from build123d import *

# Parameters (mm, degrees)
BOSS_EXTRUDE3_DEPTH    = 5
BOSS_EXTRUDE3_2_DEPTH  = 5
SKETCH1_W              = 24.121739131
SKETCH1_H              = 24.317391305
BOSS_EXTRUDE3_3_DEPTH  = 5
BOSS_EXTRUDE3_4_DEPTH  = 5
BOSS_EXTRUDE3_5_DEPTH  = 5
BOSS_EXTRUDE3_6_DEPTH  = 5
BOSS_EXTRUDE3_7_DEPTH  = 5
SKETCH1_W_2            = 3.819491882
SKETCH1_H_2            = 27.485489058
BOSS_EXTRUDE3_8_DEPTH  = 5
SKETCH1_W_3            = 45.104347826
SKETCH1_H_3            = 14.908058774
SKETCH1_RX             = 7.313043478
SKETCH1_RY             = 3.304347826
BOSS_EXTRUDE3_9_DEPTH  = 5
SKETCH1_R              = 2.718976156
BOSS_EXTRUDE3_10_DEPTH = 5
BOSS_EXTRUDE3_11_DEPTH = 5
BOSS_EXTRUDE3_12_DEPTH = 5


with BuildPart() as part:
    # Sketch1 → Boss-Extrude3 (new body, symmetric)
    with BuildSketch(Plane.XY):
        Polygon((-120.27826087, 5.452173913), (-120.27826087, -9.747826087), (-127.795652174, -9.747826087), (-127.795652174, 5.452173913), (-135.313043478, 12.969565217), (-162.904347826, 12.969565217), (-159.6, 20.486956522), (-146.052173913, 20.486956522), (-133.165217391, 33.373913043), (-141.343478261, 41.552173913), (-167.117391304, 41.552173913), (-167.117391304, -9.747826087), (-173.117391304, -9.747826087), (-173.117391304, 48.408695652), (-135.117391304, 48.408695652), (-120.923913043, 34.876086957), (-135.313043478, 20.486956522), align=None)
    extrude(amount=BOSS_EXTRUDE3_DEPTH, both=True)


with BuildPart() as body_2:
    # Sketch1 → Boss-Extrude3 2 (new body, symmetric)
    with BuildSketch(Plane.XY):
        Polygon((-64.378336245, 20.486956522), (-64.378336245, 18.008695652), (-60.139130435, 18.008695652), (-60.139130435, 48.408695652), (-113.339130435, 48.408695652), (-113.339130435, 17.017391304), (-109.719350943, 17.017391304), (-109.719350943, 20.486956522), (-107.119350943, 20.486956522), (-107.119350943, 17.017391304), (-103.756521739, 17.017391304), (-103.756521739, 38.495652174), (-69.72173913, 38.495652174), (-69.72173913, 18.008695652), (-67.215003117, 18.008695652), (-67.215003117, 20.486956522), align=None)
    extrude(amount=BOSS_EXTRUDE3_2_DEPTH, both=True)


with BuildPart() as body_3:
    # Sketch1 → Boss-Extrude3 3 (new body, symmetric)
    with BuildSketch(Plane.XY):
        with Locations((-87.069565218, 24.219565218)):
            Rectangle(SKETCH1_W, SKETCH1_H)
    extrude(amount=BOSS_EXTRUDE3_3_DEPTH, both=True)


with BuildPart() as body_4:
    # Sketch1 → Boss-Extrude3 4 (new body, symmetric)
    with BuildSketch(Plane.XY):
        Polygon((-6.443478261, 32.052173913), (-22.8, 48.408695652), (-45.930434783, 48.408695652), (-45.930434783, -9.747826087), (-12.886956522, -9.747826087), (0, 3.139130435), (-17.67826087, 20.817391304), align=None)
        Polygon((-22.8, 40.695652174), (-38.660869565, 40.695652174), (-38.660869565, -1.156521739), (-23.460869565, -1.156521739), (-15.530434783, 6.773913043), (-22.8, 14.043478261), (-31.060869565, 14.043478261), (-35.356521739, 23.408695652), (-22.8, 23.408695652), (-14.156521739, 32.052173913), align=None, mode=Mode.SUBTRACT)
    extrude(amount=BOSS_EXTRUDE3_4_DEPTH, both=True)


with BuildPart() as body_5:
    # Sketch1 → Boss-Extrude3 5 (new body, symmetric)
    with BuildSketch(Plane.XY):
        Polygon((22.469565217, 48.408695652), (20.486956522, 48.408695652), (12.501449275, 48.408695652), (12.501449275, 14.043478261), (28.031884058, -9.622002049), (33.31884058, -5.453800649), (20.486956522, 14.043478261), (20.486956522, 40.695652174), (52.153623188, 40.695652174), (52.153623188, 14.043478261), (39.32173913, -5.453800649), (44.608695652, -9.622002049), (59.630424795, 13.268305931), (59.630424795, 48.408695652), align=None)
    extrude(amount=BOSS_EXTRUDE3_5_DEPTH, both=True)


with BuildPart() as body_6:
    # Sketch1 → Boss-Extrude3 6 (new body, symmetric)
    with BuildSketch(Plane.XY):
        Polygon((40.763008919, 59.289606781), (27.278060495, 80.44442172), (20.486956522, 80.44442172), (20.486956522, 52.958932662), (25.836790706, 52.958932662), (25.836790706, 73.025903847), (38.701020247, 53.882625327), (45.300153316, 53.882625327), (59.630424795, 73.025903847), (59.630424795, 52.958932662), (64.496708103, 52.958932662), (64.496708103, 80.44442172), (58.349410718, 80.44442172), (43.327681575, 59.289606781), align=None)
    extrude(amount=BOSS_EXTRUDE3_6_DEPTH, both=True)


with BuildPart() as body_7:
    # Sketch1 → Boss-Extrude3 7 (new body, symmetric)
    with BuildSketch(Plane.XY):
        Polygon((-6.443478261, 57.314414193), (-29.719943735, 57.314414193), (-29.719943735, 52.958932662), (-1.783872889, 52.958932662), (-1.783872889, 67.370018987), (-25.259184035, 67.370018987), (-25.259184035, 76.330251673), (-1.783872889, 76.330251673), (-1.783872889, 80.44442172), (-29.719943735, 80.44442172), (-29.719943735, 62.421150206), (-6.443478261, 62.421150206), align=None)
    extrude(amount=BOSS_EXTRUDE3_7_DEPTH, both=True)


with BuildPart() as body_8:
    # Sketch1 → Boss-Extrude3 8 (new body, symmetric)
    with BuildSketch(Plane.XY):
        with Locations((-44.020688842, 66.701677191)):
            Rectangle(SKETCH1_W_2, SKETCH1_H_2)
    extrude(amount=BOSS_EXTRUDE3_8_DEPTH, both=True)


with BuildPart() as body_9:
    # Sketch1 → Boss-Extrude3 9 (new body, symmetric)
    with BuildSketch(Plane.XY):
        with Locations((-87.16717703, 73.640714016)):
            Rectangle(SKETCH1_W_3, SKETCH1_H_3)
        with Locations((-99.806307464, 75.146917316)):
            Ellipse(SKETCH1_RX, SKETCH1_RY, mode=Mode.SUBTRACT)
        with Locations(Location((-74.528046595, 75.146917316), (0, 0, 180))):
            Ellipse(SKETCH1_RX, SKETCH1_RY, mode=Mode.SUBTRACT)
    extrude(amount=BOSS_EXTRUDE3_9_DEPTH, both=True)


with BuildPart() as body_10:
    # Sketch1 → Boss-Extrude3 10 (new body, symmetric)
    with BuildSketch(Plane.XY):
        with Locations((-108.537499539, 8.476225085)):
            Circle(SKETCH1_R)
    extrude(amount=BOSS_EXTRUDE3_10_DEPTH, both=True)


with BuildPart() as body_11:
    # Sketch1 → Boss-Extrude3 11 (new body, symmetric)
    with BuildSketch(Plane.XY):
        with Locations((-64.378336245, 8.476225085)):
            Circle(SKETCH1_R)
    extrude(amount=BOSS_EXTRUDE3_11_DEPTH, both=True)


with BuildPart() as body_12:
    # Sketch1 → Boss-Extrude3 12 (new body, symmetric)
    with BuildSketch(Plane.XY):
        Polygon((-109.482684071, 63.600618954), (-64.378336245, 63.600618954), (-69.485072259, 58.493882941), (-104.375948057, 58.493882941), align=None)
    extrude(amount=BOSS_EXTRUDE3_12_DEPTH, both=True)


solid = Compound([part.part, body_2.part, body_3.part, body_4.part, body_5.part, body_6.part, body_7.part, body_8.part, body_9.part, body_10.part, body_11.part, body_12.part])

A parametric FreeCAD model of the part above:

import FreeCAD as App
import Part
import Sketcher

V = App.Vector
Q = App.Units.Quantity

doc = App.newDocument("Part")
body = doc.addObject("PartDesign::Body", "Body")

# Sketch on XY plane
sketch1 = doc.addObject("Sketcher::SketchObject", "Sketch")
body.addObject(sketch1)
sketch1.AttachmentSupport = (doc.XY_Plane, [""])
sketch1.MapMode = "FlatFace"
sketch1.addGeometry(Part.LineSegment(V(-120, -10, 0), V(-120, 5, 0)), False)
sketch1.addGeometry(Part.LineSegment(V(-120, 5, 0), V(-135, 20, 0)), False)
sketch1.addGeometry(Part.LineSegment(V(-135, 20, 0), V(-121, 35, 0)), False)
sketch1.addGeometry(Part.LineSegment(V(-121, 35, 0), V(-135, 48, 0)), False)
sketch1.addGeometry(Part.LineSegment(V(-135, 48, 0), V(-173, 48, 0)), False)
sketch1.addGeometry(Part.LineSegment(V(-173, 48, 0), V(-173, -10, 0)), False)
sketch1.addGeometry(Part.LineSegment(V(-173, -10, 0), V(-167, -10, 0)), False)
sketch1.addGeometry(Part.LineSegment(V(-167, -10, 0), V(-167, 42, 0)), False)
sketch1.addGeometry(Part.LineSegment(V(-167, 42, 0), V(-141, 42, 0)), False)
sketch1.addGeometry(Part.LineSegment(V(-141, 42, 0), V(-133, 33, 0)), False)
sketch1.addGeometry(Part.LineSegment(V(-133, 33, 0), V(-146, 20, 0)), False)
sketch1.addGeometry(Part.LineSegment(V(-146, 20, 0), V(-160, 20, 0)), False)
sketch1.addGeometry(Part.LineSegment(V(-160, 20, 0), V(-163, 13, 0)), False)
sketch1.addGeometry(Part.LineSegment(V(-163, 13, 0), V(-135, 13, 0)), False)
sketch1.addGeometry(Part.LineSegment(V(-135, 13, 0), V(-128, 5, 0)), False)
sketch1.addGeometry(Part.LineSegment(V(-128, 5, 0), V(-128, -10, 0)), False)
sketch1.addGeometry(Part.LineSegment(V(-128, -10, 0), V(-120, -10, 0)), False)
sketch1.addConstraint(Sketcher.Constraint("Coincident", 0, 2, 1, 1))
sketch1.addConstraint(Sketcher.Constraint("Coincident", 1, 2, 2, 1))
sketch1.addConstraint(Sketcher.Constraint("Coincident", 2, 2, 3, 1))
sketch1.addConstraint(Sketcher.Constraint("Coincident", 3, 2, 4, 1))
sketch1.addConstraint(Sketcher.Constraint("Coincident", 4, 2, 5, 1))
sketch1.addConstraint(Sketcher.Constraint("Coincident", 5, 2, 6, 1))
sketch1.addConstraint(Sketcher.Constraint("Coincident", 6, 2, 7, 1))
sketch1.addConstraint(Sketcher.Constraint("Coincident", 7, 2, 8, 1))
sketch1.addConstraint(Sketcher.Constraint("Coincident", 8, 2, 9, 1))
sketch1.addConstraint(Sketcher.Constraint("Coincident", 9, 2, 10, 1))
sketch1.addConstraint(Sketcher.Constraint("Coincident", 10, 2, 11, 1))
sketch1.addConstraint(Sketcher.Constraint("Coincident", 11, 2, 12, 1))
sketch1.addConstraint(Sketcher.Constraint("Coincident", 12, 2, 13, 1))
sketch1.addConstraint(Sketcher.Constraint("Coincident", 13, 2, 14, 1))
sketch1.addConstraint(Sketcher.Constraint("Coincident", 14, 2, 15, 1))
sketch1.addConstraint(Sketcher.Constraint("Coincident", 15, 2, 16, 1))
sketch1.addConstraint(Sketcher.Constraint("Coincident", 16, 2, 0, 1))
sketch1.addConstraint(Sketcher.Constraint("Vertical", 0))
sketch1.addConstraint(Sketcher.Constraint("Horizontal", 4))
sketch1.addConstraint(Sketcher.Constraint("Vertical", 5))
sketch1.addConstraint(Sketcher.Constraint("Horizontal", 6))
sketch1.addConstraint(Sketcher.Constraint("Vertical", 7))
sketch1.addConstraint(Sketcher.Constraint("Horizontal", 8))
sketch1.addConstraint(Sketcher.Constraint("Horizontal", 11))
sketch1.addConstraint(Sketcher.Constraint("Horizontal", 13))
sketch1.addConstraint(Sketcher.Constraint("Vertical", 15))
sketch1.addConstraint(Sketcher.Constraint("Horizontal", 16))
sketch1.addConstraint(Sketcher.Constraint("Perpendicular", 1, 2))
sketch1.addConstraint(Sketcher.Constraint("Perpendicular", 2, 9))
sketch1.addConstraint(Sketcher.Constraint("Perpendicular", 9, 10))
sketch1.addConstraint(Sketcher.Constraint("Perpendicular", 10, 14))
sketch1.addConstraint(Sketcher.Constraint("Horizontal", 1, 2, 10, 2))
sketch1.addConstraint(Sketcher.Constraint("Horizontal", 0, 2, 14, 2))
sketch1.addConstraint(Sketcher.Constraint("Horizontal", 6, 2, 15, 2))
sketch1.addConstraint(Sketcher.Constraint("Vertical", 1, 2, 13, 2))
sketch1.addConstraint(Sketcher.Constraint("DistanceX", 4, 2, 4, 1, Q("38 mm")))
sketch1.addConstraint(Sketcher.Constraint("DistanceX", 6, 1, 6, 2, Q("6 mm")))
sketch1.addConstraint(Sketcher.Constraint("Angle", 1, Q("135 deg")))
sketch1.addConstraint(Sketcher.Constraint("DistanceY", 0, 1, 0, 2, Q("15.2 mm")))
sketch1.addConstraint(Sketcher.Constraint("DistanceY", 7, 1, 7, 2, Q("51.3 mm")))
sketch1.addConstraint(Sketcher.Constraint("DistanceX", 11, 2, -1, 1, Q("159.6 mm")))
sketch1.addConstraint(Sketcher.Constraint("DistanceX", 16, 1, 16, 2, Q("7.517391 mm")))
sketch1.addConstraint(Sketcher.Constraint("DistanceY", 5, 2, 5, 1, Q("58.156522 mm")))
sketch1.addConstraint(Sketcher.Constraint("Distance", 10, Q("18.224909 mm")))
sketch1.addConstraint(Sketcher.Constraint("Distance", 12, Q("8.21157 mm")))
sketch1.addConstraint(Sketcher.Constraint("DistanceX", 8, 1, 8, 2, Q("25.773913 mm")))
sketch1.addConstraint(Sketcher.Constraint("DistanceX", 11, 2, 11, 1, Q("13.547826 mm")))
sketch1.addConstraint(Sketcher.Constraint("DistanceX", 13, 1, 13, 2, Q("27.591304 mm")))
sketch1.addConstraint(Sketcher.Constraint("DistanceX", 0, 2, -1, 1, Q("120.278261 mm")))
sketch1.addConstraint(Sketcher.Constraint("DistanceX", 1, 2, 2, 2, Q("14.38913 mm")))
sketch1.addConstraint(Sketcher.Constraint("DistanceY", -1, 1, 0, 2, Q("5.452174 mm")))
pad1 = doc.addObject("PartDesign::Pad", "Pad")
body.addObject(pad1)
pad1.Profile = sketch1
pad1.Length = 10
pad1.Midplane = True
body2 = doc.addObject("PartDesign::Body", "Body001")

# Sketch on XY plane
sketch2 = doc.addObject("Sketcher::SketchObject", "Sketch001")
body2.addObject(sketch2)
sketch2.AttachmentSupport = (doc.getObject("XY_Plane001"), [""])
sketch2.MapMode = "FlatFace"
sketch2.addGeometry(Part.LineSegment(V(-64.4, 20.5, 0), V(-64.4, 18, 0)), False)
sketch2.addGeometry(Part.LineSegment(V(-64.4, 18, 0), V(-60.1, 18, 0)), False)
sketch2.addGeometry(Part.LineSegment(V(-60.1, 18, 0), V(-60.1, 48.4, 0)), False)
sketch2.addGeometry(Part.LineSegment(V(-60.1, 48.4, 0), V(-113.3, 48.4, 0)), False)
sketch2.addGeometry(Part.LineSegment(V(-113.3, 48.4, 0), V(-113.3, 17, 0)), False)
sketch2.addGeometry(Part.LineSegment(V(-113.3, 17, 0), V(-109.7, 17, 0)), False)
sketch2.addGeometry(Part.LineSegment(V(-109.7, 17, 0), V(-109.7, 20.5, 0)), False)
sketch2.addGeometry(Part.LineSegment(V(-109.7, 20.5, 0), V(-107.1, 20.5, 0)), False)
sketch2.addGeometry(Part.LineSegment(V(-107.1, 20.5, 0), V(-107.1, 17, 0)), False)
sketch2.addGeometry(Part.LineSegment(V(-107.1, 17, 0), V(-103.8, 17, 0)), False)
sketch2.addGeometry(Part.LineSegment(V(-103.8, 17, 0), V(-103.8, 38.5, 0)), False)
sketch2.addGeometry(Part.LineSegment(V(-103.8, 38.5, 0), V(-69.7, 38.5, 0)), False)
sketch2.addGeometry(Part.LineSegment(V(-69.7, 38.5, 0), V(-69.7, 18, 0)), False)
sketch2.addGeometry(Part.LineSegment(V(-69.7, 18, 0), V(-67.2, 18, 0)), False)
sketch2.addGeometry(Part.LineSegment(V(-67.2, 18, 0), V(-67.2, 20.5, 0)), False)
sketch2.addGeometry(Part.LineSegment(V(-67.2, 20.5, 0), V(-64.4, 20.5, 0)), False)
sketch2.addConstraint(Sketcher.Constraint("Coincident", 0, 2, 1, 1))
sketch2.addConstraint(Sketcher.Constraint("Coincident", 1, 2, 2, 1))
sketch2.addConstraint(Sketcher.Constraint("Coincident", 2, 2, 3, 1))
sketch2.addConstraint(Sketcher.Constraint("Coincident", 3, 2, 4, 1))
sketch2.addConstraint(Sketcher.Constraint("Coincident", 4, 2, 5, 1))
sketch2.addConstraint(Sketcher.Constraint("Coincident", 5, 2, 6, 1))
sketch2.addConstraint(Sketcher.Constraint("Coincident", 6, 2, 7, 1))
sketch2.addConstraint(Sketcher.Constraint("Coincident", 7, 2, 8, 1))
sketch2.addConstraint(Sketcher.Constraint("Coincident", 8, 2, 9, 1))
sketch2.addConstraint(Sketcher.Constraint("Coincident", 9, 2, 10, 1))
sketch2.addConstraint(Sketcher.Constraint("Coincident", 10, 2, 11, 1))
sketch2.addConstraint(Sketcher.Constraint("Coincident", 11, 2, 12, 1))
sketch2.addConstraint(Sketcher.Constraint("Coincident", 12, 2, 13, 1))
sketch2.addConstraint(Sketcher.Constraint("Coincident", 13, 2, 14, 1))
sketch2.addConstraint(Sketcher.Constraint("Coincident", 14, 2, 15, 1))
sketch2.addConstraint(Sketcher.Constraint("Coincident", 15, 2, 0, 1))
sketch2.addConstraint(Sketcher.Constraint("Vertical", 0))
sketch2.addConstraint(Sketcher.Constraint("Horizontal", 1))
sketch2.addConstraint(Sketcher.Constraint("Vertical", 2))
sketch2.addConstraint(Sketcher.Constraint("Horizontal", 3))
sketch2.addConstraint(Sketcher.Constraint("Vertical", 4))
sketch2.addConstraint(Sketcher.Constraint("Horizontal", 5))
sketch2.addConstraint(Sketcher.Constraint("Vertical", 6))
sketch2.addConstraint(Sketcher.Constraint("Horizontal", 7))
sketch2.addConstraint(Sketcher.Constraint("Vertical", 8))
sketch2.addConstraint(Sketcher.Constraint("Horizontal", 9))
sketch2.addConstraint(Sketcher.Constraint("Vertical", 10))
sketch2.addConstraint(Sketcher.Constraint("Horizontal", 11))
sketch2.addConstraint(Sketcher.Constraint("Vertical", 12))
sketch2.addConstraint(Sketcher.Constraint("Horizontal", 13))
sketch2.addConstraint(Sketcher.Constraint("Vertical", 14))
sketch2.addConstraint(Sketcher.Constraint("Horizontal", 15))
sketch2.addConstraint(Sketcher.Constraint("Horizontal", 5, 2, 8, 2))
sketch2.addConstraint(Sketcher.Constraint("Horizontal", 1, 2, 12, 2))
sketch2.addConstraint(Sketcher.Constraint("Horizontal", 7, 2, 14, 2))
sketch2.addConstraint(Sketcher.Constraint("DistanceX", 3, 2, 3, 1, Q("53.2 mm")))
sketch2.addConstraint(Sketcher.Constraint("DistanceX", 7, 1, 7, 2, Q("2.6 mm")))
sketch2.addConstraint(Sketcher.Constraint("DistanceY", 2, 1, 2, 2, Q("30.4 mm")))
sketch2.addConstraint(Sketcher.Constraint("DistanceX", 5, 1, 5, 2, Q("3.619779 mm")))
sketch2.addConstraint(Sketcher.Constraint("DistanceX", 9, 1, 9, 2, Q("3.362829 mm")))
sketch2.addConstraint(Sketcher.Constraint("DistanceY", 0, 2, 0, 1, Q("2.478261 mm")))
sketch2.addConstraint(Sketcher.Constraint("DistanceY", 10, 1, 10, 2, Q("21.478261 mm")))
sketch2.addConstraint(Sketcher.Constraint("DistanceX", 1, 1, 1, 2, Q("4.239206 mm")))
sketch2.addConstraint(Sketcher.Constraint("DistanceX", 11, 1, 11, 2, Q("34.034783 mm")))
sketch2.addConstraint(Sketcher.Constraint("DistanceX", 13, 1, 13, 2, Q("2.506736 mm")))
sketch2.addConstraint(Sketcher.Constraint("DistanceY", 4, 2, 4, 1, Q("31.391304 mm")))
sketch2.addConstraint(Sketcher.Constraint("DistanceX", 1, 2, -1, 1, Q("60.13913 mm")))
sketch2.addConstraint(Sketcher.Constraint("DistanceY", -1, 1, 4, 2, Q("17.017391 mm")))
pad2 = doc.addObject("PartDesign::Pad", "Pad001")
body2.addObject(pad2)
pad2.Profile = sketch2
pad2.Length = 10
pad2.Midplane = True
body3 = doc.addObject("PartDesign::Body", "Body002")

# Sketch on XY plane
sketch3 = doc.addObject("Sketcher::SketchObject", "Sketch002")
body3.addObject(sketch3)
sketch3.AttachmentSupport = (doc.getObject("XY_Plane002"), [""])
sketch3.MapMode = "FlatFace"
sketch3.addGeometry(Part.LineSegment(V(-99, 36, 0), V(-99, 12, 0)), False)
sketch3.addGeometry(Part.LineSegment(V(-99, 12, 0), V(-75, 12, 0)), False)
sketch3.addGeometry(Part.LineSegment(V(-75, 12, 0), V(-75, 36, 0)), False)
sketch3.addGeometry(Part.LineSegment(V(-75, 36, 0), V(-99, 36, 0)), False)
sketch3.addConstraint(Sketcher.Constraint("Coincident", 0, 2, 1, 1))
sketch3.addConstraint(Sketcher.Constraint("Coincident", 1, 2, 2, 1))
sketch3.addConstraint(Sketcher.Constraint("Coincident", 2, 2, 3, 1))
sketch3.addConstraint(Sketcher.Constraint("Coincident", 3, 2, 0, 1))
sketch3.addConstraint(Sketcher.Constraint("Vertical", 0))
sketch3.addConstraint(Sketcher.Constraint("Horizontal", 1))
sketch3.addConstraint(Sketcher.Constraint("Vertical", 2))
sketch3.addConstraint(Sketcher.Constraint("Horizontal", 3))
sketch3.addConstraint(Sketcher.Constraint("DistanceX", 1, 1, 1, 2, Q("24.121739 mm")))
sketch3.addConstraint(Sketcher.Constraint("DistanceY", 0, 2, 0, 1, Q("24.317391 mm")))
sketch3.addConstraint(Sketcher.Constraint("DistanceY", -1, 1, 0, 2, Q("12.06087 mm")))
sketch3.addConstraint(Sketcher.Constraint("DistanceX", 0, 2, -1, 1, Q("99.130435 mm")))
pad3 = doc.addObject("PartDesign::Pad", "Pad002")
body3.addObject(pad3)
pad3.Profile = sketch3
pad3.Length = 10
pad3.Midplane = True
body4 = doc.addObject("PartDesign::Body", "Body003")

# Sketch on XY plane
sketch4 = doc.addObject("Sketcher::SketchObject", "Sketch003")
body4.addObject(sketch4)
sketch4.AttachmentSupport = (doc.getObject("XY_Plane003"), [""])
sketch4.MapMode = "FlatFace"
sketch4.addGeometry(Part.LineSegment(V(-6, 32, 0), V(-23, 48, 0)), False)
sketch4.addGeometry(Part.LineSegment(V(-23, 48, 0), V(-46, 48, 0)), False)
sketch4.addGeometry(Part.LineSegment(V(-46, 48, 0), V(-46, -10, 0)), False)
sketch4.addGeometry(Part.LineSegment(V(-46, -10, 0), V(-13, -10, 0)), False)
sketch4.addGeometry(Part.LineSegment(V(-13, -10, 0), V(0, 3, 0)), False)
sketch4.addGeometry(Part.LineSegment(V(0, 3, 0), V(-18, 21, 0)), False)
sketch4.addGeometry(Part.LineSegment(V(-18, 21, 0), V(-6, 32, 0)), False)
sketch4.addGeometry(Part.LineSegment(V(-39, 41, 0), V(-23, 41, 0)), False)
sketch4.addGeometry(Part.LineSegment(V(-23, 41, 0), V(-14, 32, 0)), False)
sketch4.addGeometry(Part.LineSegment(V(-14, 32, 0), V(-23, 23, 0)), False)
sketch4.addGeometry(Part.LineSegment(V(-23, 23, 0), V(-35, 23, 0)), False)
sketch4.addGeometry(Part.LineSegment(V(-35, 23, 0), V(-31, 14, 0)), False)
sketch4.addGeometry(Part.LineSegment(V(-31, 14, 0), V(-23, 14, 0)), False)
sketch4.addGeometry(Part.LineSegment(V(-23, 14, 0), V(-16, 7, 0)), False)
sketch4.addGeometry(Part.LineSegment(V(-16, 7, 0), V(-23, -1, 0)), False)
sketch4.addGeometry(Part.LineSegment(V(-23, -1, 0), V(-39, -1, 0)), False)
sketch4.addGeometry(Part.LineSegment(V(-39, -1, 0), V(-39, 41, 0)), False)
sketch4.addConstraint(Sketcher.Constraint("Coincident", 0, 2, 1, 1))
sketch4.addConstraint(Sketcher.Constraint("Coincident", 1, 2, 2, 1))
sketch4.addConstraint(Sketcher.Constraint("Coincident", 2, 2, 3, 1))
sketch4.addConstraint(Sketcher.Constraint("Coincident", 3, 2, 4, 1))
sketch4.addConstraint(Sketcher.Constraint("Coincident", 4, 2, 5, 1))
sketch4.addConstraint(Sketcher.Constraint("Coincident", 5, 2, 6, 1))
sketch4.addConstraint(Sketcher.Constraint("Coincident", 6, 2, 0, 1))
sketch4.addConstraint(Sketcher.Constraint("Coincident", 7, 2, 8, 1))
sketch4.addConstraint(Sketcher.Constraint("Coincident", 8, 2, 9, 1))
sketch4.addConstraint(Sketcher.Constraint("Coincident", 9, 2, 10, 1))
sketch4.addConstraint(Sketcher.Constraint("Coincident", 10, 2, 11, 1))
sketch4.addConstraint(Sketcher.Constraint("Coincident", 11, 2, 12, 1))
sketch4.addConstraint(Sketcher.Constraint("Coincident", 12, 2, 13, 1))
sketch4.addConstraint(Sketcher.Constraint("Coincident", 13, 2, 14, 1))
sketch4.addConstraint(Sketcher.Constraint("Coincident", 14, 2, 15, 1))
sketch4.addConstraint(Sketcher.Constraint("Coincident", 15, 2, 16, 1))
sketch4.addConstraint(Sketcher.Constraint("Coincident", 16, 2, 7, 1))
sketch4.addConstraint(Sketcher.Constraint("Horizontal", 1))
sketch4.addConstraint(Sketcher.Constraint("Vertical", 2))
sketch4.addConstraint(Sketcher.Constraint("Horizontal", 3))
sketch4.addConstraint(Sketcher.Constraint("Horizontal", 7))
sketch4.addConstraint(Sketcher.Constraint("Horizontal", 10))
sketch4.addConstraint(Sketcher.Constraint("Horizontal", 12))
sketch4.addConstraint(Sketcher.Constraint("Horizontal", 15))
sketch4.addConstraint(Sketcher.Constraint("Vertical", 16))
sketch4.addConstraint(Sketcher.Constraint("PointOnObject", 4, 2, -2))
sketch4.addConstraint(Sketcher.Constraint("Perpendicular", 0, 4))
sketch4.addConstraint(Sketcher.Constraint("Perpendicular", 4, 5))
sketch4.addConstraint(Sketcher.Constraint("Perpendicular", 5, 6))
sketch4.addConstraint(Sketcher.Constraint("Perpendicular", 6, 8))
sketch4.addConstraint(Sketcher.Constraint("Perpendicular", 8, 9))
sketch4.addConstraint(Sketcher.Constraint("Perpendicular", 9, 13))
sketch4.addConstraint(Sketcher.Constraint("Perpendicular", 13, 14))
sketch4.addConstraint(Sketcher.Constraint("Horizontal", 6, 2, 8, 2))
sketch4.addConstraint(Sketcher.Constraint("Vertical", 0, 2, 7, 2))
sketch4.addConstraint(Sketcher.Constraint("Vertical", 7, 2, 9, 2))
sketch4.addConstraint(Sketcher.Constraint("Vertical", 9, 2, 12, 2))
sketch4.addConstraint(Sketcher.Constraint("Equal", 8, 9))
sketch4.addConstraint(Sketcher.Constraint("DistanceX", 15, 2, 15, 1, Q("15.2 mm")))
sketch4.addConstraint(Sketcher.Constraint("DistanceY", 9, 2, 0, 2, Q("25 mm")))
sketch4.addConstraint(Sketcher.Constraint("DistanceX", 0, 2, -1, 1, Q("22.8 mm")))
sketch4.addConstraint(Sketcher.Constraint("DistanceY", 3, 2, 6, 2, Q("41.8 mm")))
sketch4.addConstraint(Sketcher.Constraint("DistanceX", 10, 2, 8, 2, Q("21.2 mm")))
sketch4.addConstraint(Sketcher.Constraint("DistanceY", 14, 2, 12, 2, Q("15.2 mm")))
sketch4.addConstraint(Sketcher.Constraint("DistanceX", 11, 2, 14, 2, Q("7.6 mm")))
sketch4.addConstraint(Sketcher.Constraint("DistanceX", 3, 1, 3, 2, Q("33.043478 mm")))
sketch4.addConstraint(Sketcher.Constraint("DistanceX", 7, 1, 7, 2, Q("15.86087 mm")))
sketch4.addConstraint(Sketcher.Constraint("DistanceX", 10, 2, 10, 1, Q("12.556522 mm")))
sketch4.addConstraint(Sketcher.Constraint("Distance", 4, Q("18.224909 mm")))
sketch4.addConstraint(Sketcher.Constraint("DistanceY", 16, 1, 16, 2, Q("41.852174 mm")))
sketch4.addConstraint(Sketcher.Constraint("DistanceY", -1, 1, 4, 2, Q("3.13913 mm")))
pad4 = doc.addObject("PartDesign::Pad", "Pad003")
body4.addObject(pad4)
pad4.Profile = sketch4
pad4.Length = 10
pad4.Midplane = True
body5 = doc.addObject("PartDesign::Body", "Body004")

# Sketch on XY plane
sketch5 = doc.addObject("Sketcher::SketchObject", "Sketch004")
body5.addObject(sketch5)
sketch5.AttachmentSupport = (doc.getObject("XY_Plane004"), [""])
sketch5.MapMode = "FlatFace"
sketch5.addGeometry(Part.LineSegment(V(13, 48, 0), V(13, 14, 0)), False)
sketch5.addGeometry(Part.LineSegment(V(13, 14, 0), V(28, -10, 0)), False)
sketch5.addGeometry(Part.LineSegment(V(28, -10, 0), V(33, -5, 0)), False)
sketch5.addGeometry(Part.LineSegment(V(33, -5, 0), V(20, 14, 0)), False)
sketch5.addGeometry(Part.LineSegment(V(20, 14, 0), V(20, 41, 0)), False)
sketch5.addGeometry(Part.LineSegment(V(20, 41, 0), V(52, 41, 0)), False)
sketch5.addGeometry(Part.LineSegment(V(52, 41, 0), V(52, 14, 0)), False)
sketch5.addGeometry(Part.LineSegment(V(52, 14, 0), V(39, -5, 0)), False)
sketch5.addGeometry(Part.LineSegment(V(39, -5, 0), V(45, -10, 0)), False)
sketch5.addGeometry(Part.LineSegment(V(45, -10, 0), V(60, 13, 0)), False)
sketch5.addGeometry(Part.LineSegment(V(60, 13, 0), V(60, 48, 0)), False)
sketch5.addGeometry(Part.LineSegment(V(60, 48, 0), V(13, 48, 0)), False)
sketch5.addConstraint(Sketcher.Constraint("Coincident", 0, 2, 1, 1))
sketch5.addConstraint(Sketcher.Constraint("Coincident", 1, 2, 2, 1))
sketch5.addConstraint(Sketcher.Constraint("Coincident", 2, 2, 3, 1))
sketch5.addConstraint(Sketcher.Constraint("Coincident", 3, 2, 4, 1))
sketch5.addConstraint(Sketcher.Constraint("Coincident", 4, 2, 5, 1))
sketch5.addConstraint(Sketcher.Constraint("Coincident", 5, 2, 6, 1))
sketch5.addConstraint(Sketcher.Constraint("Coincident", 6, 2, 7, 1))
sketch5.addConstraint(Sketcher.Constraint("Coincident", 7, 2, 8, 1))
sketch5.addConstraint(Sketcher.Constraint("Coincident", 8, 2, 9, 1))
sketch5.addConstraint(Sketcher.Constraint("Coincident", 9, 2, 10, 1))
sketch5.addConstraint(Sketcher.Constraint("Coincident", 10, 2, 11, 1))
sketch5.addConstraint(Sketcher.Constraint("Coincident", 11, 2, 0, 1))
sketch5.addConstraint(Sketcher.Constraint("Vertical", 0))
sketch5.addConstraint(Sketcher.Constraint("Vertical", 4))
sketch5.addConstraint(Sketcher.Constraint("Horizontal", 5))
sketch5.addConstraint(Sketcher.Constraint("Vertical", 6))
sketch5.addConstraint(Sketcher.Constraint("Vertical", 10))
sketch5.addConstraint(Sketcher.Constraint("Horizontal", 11))
sketch5.addConstraint(Sketcher.Constraint("Horizontal", 0, 2, 3, 2))
sketch5.addConstraint(Sketcher.Constraint("Horizontal", 3, 2, 6, 2))
sketch5.addConstraint(Sketcher.Constraint("Horizontal", 2, 2, 7, 2))
sketch5.addConstraint(Sketcher.Constraint("Horizontal", 1, 2, 8, 2))
sketch5.addConstraint(Sketcher.Constraint("Equal", 3, 7))
sketch5.addConstraint(Sketcher.Constraint("Equal", 2, 8))
sketch5.addConstraint(Sketcher.Constraint("DistanceY", 10, 1, 10, 2, Q("35.14039 mm")))
sketch5.addConstraint(Sketcher.Constraint("DistanceY", 2, 2, -1, 1, Q("5.453801 mm")))
sketch5.addConstraint(Sketcher.Constraint("DistanceY", 1, 2, 2, 2, Q("4.168201 mm")))
sketch5.addConstraint(Sketcher.Constraint("DistanceX", 2, 2, 7, 2, Q("6.002899 mm")))
sketch5.addConstraint(Sketcher.Constraint("DistanceX", 6, 2, 9, 2, Q("7.476802 mm")))
sketch5.addConstraint(Sketcher.Constraint("Distance", 1, Q("28.306348 mm")))
sketch5.addConstraint(Sketcher.Constraint("DistanceX", 5, 1, 5, 2, Q("31.666667 mm")))
sketch5.addConstraint(Sketcher.Constraint("DistanceX", 11, 2, 11, 1, Q("47.128976 mm")))
sketch5.addConstraint(Sketcher.Constraint("DistanceY", 0, 2, 0, 1, Q("34.365217 mm")))
sketch5.addConstraint(Sketcher.Constraint("DistanceY", 4, 1, 4, 2, Q("26.652174 mm")))
sketch5.addConstraint(Sketcher.Constraint("DistanceX", -1, 1, 0, 2, Q("12.501449 mm")))
sketch5.addConstraint(Sketcher.Constraint("DistanceY", -1, 1, 0, 2, Q("14.043478 mm")))
pad5 = doc.addObject("PartDesign::Pad", "Pad004")
body5.addObject(pad5)
pad5.Profile = sketch5
pad5.Length = 10
pad5.Midplane = True
body6 = doc.addObject("PartDesign::Body", "Body005")

# Sketch on XY plane
sketch6 = doc.addObject("Sketcher::SketchObject", "Sketch005")
body6.addObject(sketch6)
sketch6.AttachmentSupport = (doc.getObject("XY_Plane005"), [""])
sketch6.MapMode = "FlatFace"
sketch6.addGeometry(Part.LineSegment(V(40.8, 59.3, 0), V(27.3, 80.4, 0)), False)
sketch6.addGeometry(Part.LineSegment(V(27.3, 80.4, 0), V(20.5, 80.4, 0)), False)
sketch6.addGeometry(Part.LineSegment(V(20.5, 80.4, 0), V(20.5, 53, 0)), False)
sketch6.addGeometry(Part.LineSegment(V(20.5, 53, 0), V(25.8, 53, 0)), False)
sketch6.addGeometry(Part.LineSegment(V(25.8, 53, 0), V(25.8, 73, 0)), False)
sketch6.addGeometry(Part.LineSegment(V(25.8, 73, 0), V(38.7, 53.9, 0)), False)
sketch6.addGeometry(Part.LineSegment(V(38.7, 53.9, 0), V(45.3, 53.9, 0)), False)
sketch6.addGeometry(Part.LineSegment(V(45.3, 53.9, 0), V(59.6, 73, 0)), False)
sketch6.addGeometry(Part.LineSegment(V(59.6, 73, 0), V(59.6, 53, 0)), False)
sketch6.addGeometry(Part.LineSegment(V(59.6, 53, 0), V(64.5, 53, 0)), False)
sketch6.addGeometry(Part.LineSegment(V(64.5, 53, 0), V(64.5, 80.4, 0)), False)
sketch6.addGeometry(Part.LineSegment(V(64.5, 80.4, 0), V(58.3, 80.4, 0)), False)
sketch6.addGeometry(Part.LineSegment(V(58.3, 80.4, 0), V(43.3, 59.3, 0)), False)
sketch6.addGeometry(Part.LineSegment(V(43.3, 59.3, 0), V(40.8, 59.3, 0)), False)
sketch6.addConstraint(Sketcher.Constraint("Coincident", 0, 2, 1, 1))
sketch6.addConstraint(Sketcher.Constraint("Coincident", 1, 2, 2, 1))
sketch6.addConstraint(Sketcher.Constraint("Coincident", 2, 2, 3, 1))
sketch6.addConstraint(Sketcher.Constraint("Coincident", 3, 2, 4, 1))
sketch6.addConstraint(Sketcher.Constraint("Coincident", 4, 2, 5, 1))
sketch6.addConstraint(Sketcher.Constraint("Coincident", 5, 2, 6, 1))
sketch6.addConstraint(Sketcher.Constraint("Coincident", 6, 2, 7, 1))
sketch6.addConstraint(Sketcher.Constraint("Coincident", 7, 2, 8, 1))
sketch6.addConstraint(Sketcher.Constraint("Coincident", 8, 2, 9, 1))
sketch6.addConstraint(Sketcher.Constraint("Coincident", 9, 2, 10, 1))
sketch6.addConstraint(Sketcher.Constraint("Coincident", 10, 2, 11, 1))
sketch6.addConstraint(Sketcher.Constraint("Coincident", 11, 2, 12, 1))
sketch6.addConstraint(Sketcher.Constraint("Coincident", 12, 2, 13, 1))
sketch6.addConstraint(Sketcher.Constraint("Coincident", 13, 2, 0, 1))
sketch6.addConstraint(Sketcher.Constraint("Horizontal", 1))
sketch6.addConstraint(Sketcher.Constraint("Vertical", 2))
sketch6.addConstraint(Sketcher.Constraint("Horizontal", 3))
sketch6.addConstraint(Sketcher.Constraint("Vertical", 4))
sketch6.addConstraint(Sketcher.Constraint("Horizontal", 6))
sketch6.addConstraint(Sketcher.Constraint("Vertical", 8))
sketch6.addConstraint(Sketcher.Constraint("Horizontal", 9))
sketch6.addConstraint(Sketcher.Constraint("Vertical", 10))
sketch6.addConstraint(Sketcher.Constraint("Horizontal", 11))
sketch6.addConstraint(Sketcher.Constraint("Horizontal", 13))
sketch6.addConstraint(Sketcher.Constraint("Horizontal", 4, 2, 7, 2))
sketch6.addConstraint(Sketcher.Constraint("Horizontal", 3, 2, 8, 2))
sketch6.addConstraint(Sketcher.Constraint("Horizontal", 1, 2, 10, 2))
sketch6.addConstraint(Sketcher.Constraint("DistanceY", 2, 2, 2, 1, Q("27.485489 mm")))
sketch6.addConstraint(Sketcher.Constraint("DistanceY", 4, 1, 4, 2, Q("20.066971 mm")))
sketch6.addConstraint(Sketcher.Constraint("Distance", 0, Q("25.087248 mm")))
sketch6.addConstraint(Sketcher.Constraint("DistanceX", 1, 2, 1, 1, Q("6.791104 mm")))
sketch6.addConstraint(Sketcher.Constraint("DistanceX", 3, 1, 3, 2, Q("5.349834 mm")))
sketch6.addConstraint(Sketcher.Constraint("DistanceX", 6, 1, 6, 2, Q("6.599133 mm")))
sketch6.addConstraint(Sketcher.Constraint("DistanceX", 9, 1, 9, 2, Q("4.866283 mm")))
sketch6.addConstraint(Sketcher.Constraint("DistanceX", 11, 2, 11, 1, Q("6.147297 mm")))
sketch6.addConstraint(Sketcher.Constraint("DistanceX", 13, 2, 13, 1, Q("2.564673 mm")))
sketch6.addConstraint(Sketcher.Constraint("DistanceX", -1, 1, 0, 2, Q("27.27806 mm")))
sketch6.addConstraint(Sketcher.Constraint("DistanceY", -1, 1, 0, 2, Q("80.444422 mm")))
sketch6.addConstraint(Sketcher.Constraint("DistanceX", -1, 1, 5, 2, Q("38.70102 mm")))
sketch6.addConstraint(Sketcher.Constraint("DistanceX", -1, 1, 9, 2, Q("64.496708 mm")))
sketch6.addConstraint(Sketcher.Constraint("DistanceX", -1, 1, 12, 2, Q("43.327682 mm")))
sketch6.addConstraint(Sketcher.Constraint("DistanceY", 5, 2, 4, 2, Q("19.143279 mm")))
pad6 = doc.addObject("PartDesign::Pad", "Pad005")
body6.addObject(pad6)
pad6.Profile = sketch6
pad6.Length = 10
pad6.Midplane = True
body7 = doc.addObject("PartDesign::Body", "Body006")

# Sketch on XY plane
sketch7 = doc.addObject("Sketcher::SketchObject", "Sketch006")
body7.addObject(sketch7)
sketch7.AttachmentSupport = (doc.getObject("XY_Plane006"), [""])
sketch7.MapMode = "FlatFace"
sketch7.addGeometry(Part.LineSegment(V(-6.4, 57.3, 0), V(-29.7, 57.3, 0)), False)
sketch7.addGeometry(Part.LineSegment(V(-29.7, 57.3, 0), V(-29.7, 53, 0)), False)
sketch7.addGeometry(Part.LineSegment(V(-29.7, 53, 0), V(-1.8, 53, 0)), False)
sketch7.addGeometry(Part.LineSegment(V(-1.8, 53, 0), V(-1.8, 67.4, 0)), False)
sketch7.addGeometry(Part.LineSegment(V(-1.8, 67.4, 0), V(-25.3, 67.4, 0)), False)
sketch7.addGeometry(Part.LineSegment(V(-25.3, 67.4, 0), V(-25.3, 76.3, 0)), False)
sketch7.addGeometry(Part.LineSegment(V(-25.3, 76.3, 0), V(-1.8, 76.3, 0)), False)
sketch7.addGeometry(Part.LineSegment(V(-1.8, 76.3, 0), V(-1.8, 80.4, 0)), False)
sketch7.addGeometry(Part.LineSegment(V(-1.8, 80.4, 0), V(-29.7, 80.4, 0)), False)
sketch7.addGeometry(Part.LineSegment(V(-29.7, 80.4, 0), V(-29.7, 62.4, 0)), False)
sketch7.addGeometry(Part.LineSegment(V(-29.7, 62.4, 0), V(-6.4, 62.4, 0)), False)
sketch7.addGeometry(Part.LineSegment(V(-6.4, 62.4, 0), V(-6.4, 57.3, 0)), False)
sketch7.addConstraint(Sketcher.Constraint("Coincident", 0, 2, 1, 1))
sketch7.addConstraint(Sketcher.Constraint("Coincident", 1, 2, 2, 1))
sketch7.addConstraint(Sketcher.Constraint("Coincident", 2, 2, 3, 1))
sketch7.addConstraint(Sketcher.Constraint("Coincident", 3, 2, 4, 1))
sketch7.addConstraint(Sketcher.Constraint("Coincident", 4, 2, 5, 1))
sketch7.addConstraint(Sketcher.Constraint("Coincident", 5, 2, 6, 1))
sketch7.addConstraint(Sketcher.Constraint("Coincident", 6, 2, 7, 1))
sketch7.addConstraint(Sketcher.Constraint("Coincident", 7, 2, 8, 1))
sketch7.addConstraint(Sketcher.Constraint("Coincident", 8, 2, 9, 1))
sketch7.addConstraint(Sketcher.Constraint("Coincident", 9, 2, 10, 1))
sketch7.addConstraint(Sketcher.Constraint("Coincident", 10, 2, 11, 1))
sketch7.addConstraint(Sketcher.Constraint("Coincident", 11, 2, 0, 1))
sketch7.addConstraint(Sketcher.Constraint("Horizontal", 0))
sketch7.addConstraint(Sketcher.Constraint("Vertical", 1))
sketch7.addConstraint(Sketcher.Constraint("Horizontal", 2))
sketch7.addConstraint(Sketcher.Constraint("Vertical", 3))
sketch7.addConstraint(Sketcher.Constraint("Horizontal", 4))
sketch7.addConstraint(Sketcher.Constraint("Vertical", 5))
sketch7.addConstraint(Sketcher.Constraint("Horizontal", 6))
sketch7.addConstraint(Sketcher.Constraint("Vertical", 7))
sketch7.addConstraint(Sketcher.Constraint("Horizontal", 8))
sketch7.addConstraint(Sketcher.Constraint("Vertical", 9))
sketch7.addConstraint(Sketcher.Constraint("Horizontal", 10))
sketch7.addConstraint(Sketcher.Constraint("Vertical", 11))
sketch7.addConstraint(Sketcher.Constraint("Vertical", 3, 2, 6, 2))
sketch7.addConstraint(Sketcher.Constraint("Vertical", 1, 2, 8, 2))
sketch7.addConstraint(Sketcher.Constraint("DistanceX", 2, 1, 2, 2, Q("27.936071 mm")))
sketch7.addConstraint(Sketcher.Constraint("DistanceX", 4, 2, 4, 1, Q("23.475311 mm")))
sketch7.addConstraint(Sketcher.Constraint("DistanceY", 1, 2, 1, 1, Q("4.355482 mm")))
sketch7.addConstraint(Sketcher.Constraint("DistanceY", 7, 1, 7, 2, Q("4.11417 mm")))
sketch7.addConstraint(Sketcher.Constraint("DistanceY", 9, 2, 9, 1, Q("18.023272 mm")))
sketch7.addConstraint(Sketcher.Constraint("DistanceX", 0, 2, 0, 1, Q("23.276465 mm")))
sketch7.addConstraint(Sketcher.Constraint("DistanceY", 3, 1, 3, 2, Q("14.411086 mm")))
sketch7.addConstraint(Sketcher.Constraint("DistanceY", 5, 1, 5, 2, Q("8.960233 mm")))
sketch7.addConstraint(Sketcher.Constraint("DistanceY", -1, 1, 3, 2, Q("67.370019 mm")))
sketch7.addConstraint(Sketcher.Constraint("DistanceX", 10, 2, -1, 1, Q("6.443478 mm")))
pad7 = doc.addObject("PartDesign::Pad", "Pad006")
body7.addObject(pad7)
pad7.Profile = sketch7
pad7.Length = 10
pad7.Midplane = True
body8 = doc.addObject("PartDesign::Body", "Body007")

# Sketch on XY plane
sketch8 = doc.addObject("Sketcher::SketchObject", "Sketch007")
body8.addObject(sketch8)
sketch8.AttachmentSupport = (doc.getObject("XY_Plane007"), [""])
sketch8.MapMode = "FlatFace"
sketch8.addGeometry(Part.LineSegment(V(-45.9, 80.4, 0), V(-45.9, 53, 0)), False)
sketch8.addGeometry(Part.LineSegment(V(-45.9, 53, 0), V(-42.1, 53, 0)), False)
sketch8.addGeometry(Part.LineSegment(V(-42.1, 53, 0), V(-42.1, 80.4, 0)), False)
sketch8.addGeometry(Part.LineSegment(V(-42.1, 80.4, 0), V(-45.9, 80.4, 0)), False)
sketch8.addConstraint(Sketcher.Constraint("Coincident", 0, 2, 1, 1))
sketch8.addConstraint(Sketcher.Constraint("Coincident", 1, 2, 2, 1))
sketch8.addConstraint(Sketcher.Constraint("Coincident", 2, 2, 3, 1))
sketch8.addConstraint(Sketcher.Constraint("Coincident", 3, 2, 0, 1))
sketch8.addConstraint(Sketcher.Constraint("Vertical", 0))
sketch8.addConstraint(Sketcher.Constraint("Horizontal", 1))
sketch8.addConstraint(Sketcher.Constraint("Vertical", 2))
sketch8.addConstraint(Sketcher.Constraint("Horizontal", 3))
sketch8.addConstraint(Sketcher.Constraint("DistanceX", 1, 1, 1, 2, Q("3.819492 mm")))
sketch8.addConstraint(Sketcher.Constraint("DistanceY", 0, 2, 0, 1, Q("27.485489 mm")))
sketch8.addConstraint(Sketcher.Constraint("DistanceY", -1, 1, 2, 2, Q("80.444422 mm")))
sketch8.addConstraint(Sketcher.Constraint("DistanceX", 0, 2, -1, 1, Q("45.930435 mm")))
pad8 = doc.addObject("PartDesign::Pad", "Pad007")
body8.addObject(pad8)
pad8.Profile = sketch8
pad8.Length = 10
pad8.Midplane = True
body9 = doc.addObject("PartDesign::Body", "Body008")

# Sketch on XY plane
sketch9 = doc.addObject("Sketcher::SketchObject", "Sketch008")
body9.addObject(sketch9)
sketch9.AttachmentSupport = (doc.getObject("XY_Plane008"), [""])
sketch9.MapMode = "FlatFace"
sketch9.addGeometry(Part.LineSegment(V(-109.719351, 81.094743, 0), V(-109.719351, 66.186685, 0)), False)
sketch9.addGeometry(Part.LineSegment(V(-109.719351, 66.186685, 0), V(-64.615003, 66.186685, 0)), False)
sketch9.addGeometry(Part.LineSegment(V(-64.615003, 66.186685, 0), V(-64.615003, 81.094743, 0)), False)
sketch9.addGeometry(Part.LineSegment(V(-64.615003, 81.094743, 0), V(-109.719351, 81.094743, 0)), False)
sketch9.addGeometry(Part.Ellipse(V(-92.493264, 75.146917, 0), V(-99.806307, 78.451265, 0), V(-99.806307, 75.146917, 0)), False)
sketch9.addGeometry(Part.Ellipse(V(-81.84109, 75.146917, 0), V(-74.528047, 71.842569, 0), V(-74.528047, 75.146917, 0)), False)
sketch9.addConstraint(Sketcher.Constraint("Block", 4))
sketch9.addConstraint(Sketcher.Constraint("Block", 5))
sketch9.addConstraint(Sketcher.Constraint("Coincident", 0, 2, 1, 1))
sketch9.addConstraint(Sketcher.Constraint("Coincident", 1, 2, 2, 1))
sketch9.addConstraint(Sketcher.Constraint("Coincident", 2, 2, 3, 1))
sketch9.addConstraint(Sketcher.Constraint("Coincident", 3, 2, 0, 1))
sketch9.addConstraint(Sketcher.Constraint("Vertical", 0))
sketch9.addConstraint(Sketcher.Constraint("Horizontal", 1))
sketch9.addConstraint(Sketcher.Constraint("Vertical", 2))
sketch9.addConstraint(Sketcher.Constraint("Horizontal", 3))
sketch9.addConstraint(Sketcher.Constraint("DistanceY", 0, 2, 0, 1, Q("14.908059 mm")))
sketch9.addConstraint(Sketcher.Constraint("DistanceX", 1, 1, 1, 2, Q("45.104348 mm")))
sketch9.addConstraint(Sketcher.Constraint("DistanceX", 0, 2, -1, 1, Q("109.719351 mm")))
sketch9.addConstraint(Sketcher.Constraint("DistanceY", -1, 1, 0, 2, Q("66.186685 mm")))
pad9 = doc.addObject("PartDesign::Pad", "Pad008")
body9.addObject(pad9)
pad9.Profile = sketch9
pad9.Length = 10
pad9.Midplane = True
body10 = doc.addObject("PartDesign::Body", "Body009")

# Sketch on XY plane
sketch10 = doc.addObject("Sketcher::SketchObject", "Sketch009")
body10.addObject(sketch10)
sketch10.AttachmentSupport = (doc.getObject("XY_Plane009"), [""])
sketch10.MapMode = "FlatFace"
sketch10.addGeometry(Part.Circle(V(-108.5, 8.5, 0), V(0, 0, 1), 2.7), False)
sketch10.addConstraint(Sketcher.Constraint("Diameter", 0, Q("5.437952 mm")))
sketch10.addConstraint(Sketcher.Constraint("DistanceX", 0, 3, -1, 1, Q("108.5375 mm")))
sketch10.addConstraint(Sketcher.Constraint("DistanceY", -1, 1, 0, 3, Q("8.476225 mm")))
pad10 = doc.addObject("PartDesign::Pad", "Pad009")
body10.addObject(pad10)
pad10.Profile = sketch10
pad10.Length = 10
pad10.Midplane = True
body11 = doc.addObject("PartDesign::Body", "Body010")

# Sketch on XY plane
sketch11 = doc.addObject("Sketcher::SketchObject", "Sketch010")
body11.addObject(sketch11)
sketch11.AttachmentSupport = (doc.getObject("XY_Plane010"), [""])
sketch11.MapMode = "FlatFace"
sketch11.addGeometry(Part.Circle(V(-64.4, 8.5, 0), V(0, 0, 1), 2.7), False)
sketch11.addConstraint(Sketcher.Constraint("Diameter", 0, Q("5.437952 mm")))
sketch11.addConstraint(Sketcher.Constraint("DistanceX", 0, 3, -1, 1, Q("64.378336 mm")))
sketch11.addConstraint(Sketcher.Constraint("DistanceY", -1, 1, 0, 3, Q("8.476225 mm")))
pad11 = doc.addObject("PartDesign::Pad", "Pad010")
body11.addObject(pad11)
pad11.Profile = sketch11
pad11.Length = 10
pad11.Midplane = True
body12 = doc.addObject("PartDesign::Body", "Body011")

# Sketch on XY plane
sketch12 = doc.addObject("Sketcher::SketchObject", "Sketch011")
body12.addObject(sketch12)
sketch12.AttachmentSupport = (doc.getObject("XY_Plane011"), [""])
sketch12.MapMode = "FlatFace"
sketch12.addGeometry(Part.LineSegment(V(-64, 64, 0), V(-109, 64, 0)), False)
sketch12.addGeometry(Part.LineSegment(V(-109, 64, 0), V(-104, 58, 0)), False)
sketch12.addGeometry(Part.LineSegment(V(-104, 58, 0), V(-69, 58, 0)), False)
sketch12.addGeometry(Part.LineSegment(V(-69, 58, 0), V(-64, 64, 0)), False)
sketch12.addConstraint(Sketcher.Constraint("Coincident", 0, 2, 1, 1))
sketch12.addConstraint(Sketcher.Constraint("Coincident", 1, 2, 2, 1))
sketch12.addConstraint(Sketcher.Constraint("Coincident", 2, 2, 3, 1))
sketch12.addConstraint(Sketcher.Constraint("Coincident", 3, 2, 0, 1))
sketch12.addConstraint(Sketcher.Constraint("Horizontal", 0))
sketch12.addConstraint(Sketcher.Constraint("Horizontal", 2))
sketch12.addConstraint(Sketcher.Constraint("Perpendicular", 1, 3))
sketch12.addConstraint(Sketcher.Constraint("Equal", 1, 3))
sketch12.addConstraint(Sketcher.Constraint("DistanceX", 0, 2, 0, 1, Q("45.104348 mm")))
sketch12.addConstraint(Sketcher.Constraint("DistanceX", 2, 1, 2, 2, Q("34.890876 mm")))
sketch12.addConstraint(Sketcher.Constraint("DistanceY", -1, 1, 0, 2, Q("63.600619 mm")))
sketch12.addConstraint(Sketcher.Constraint("DistanceX", 1, 2, -1, 1, Q("104.375948 mm")))
pad12 = doc.addObject("PartDesign::Pad", "Pad011")
body12.addObject(pad12)
pad12.Profile = sketch12
pad12.Length = 10
pad12.Midplane = True

doc.recompute()
